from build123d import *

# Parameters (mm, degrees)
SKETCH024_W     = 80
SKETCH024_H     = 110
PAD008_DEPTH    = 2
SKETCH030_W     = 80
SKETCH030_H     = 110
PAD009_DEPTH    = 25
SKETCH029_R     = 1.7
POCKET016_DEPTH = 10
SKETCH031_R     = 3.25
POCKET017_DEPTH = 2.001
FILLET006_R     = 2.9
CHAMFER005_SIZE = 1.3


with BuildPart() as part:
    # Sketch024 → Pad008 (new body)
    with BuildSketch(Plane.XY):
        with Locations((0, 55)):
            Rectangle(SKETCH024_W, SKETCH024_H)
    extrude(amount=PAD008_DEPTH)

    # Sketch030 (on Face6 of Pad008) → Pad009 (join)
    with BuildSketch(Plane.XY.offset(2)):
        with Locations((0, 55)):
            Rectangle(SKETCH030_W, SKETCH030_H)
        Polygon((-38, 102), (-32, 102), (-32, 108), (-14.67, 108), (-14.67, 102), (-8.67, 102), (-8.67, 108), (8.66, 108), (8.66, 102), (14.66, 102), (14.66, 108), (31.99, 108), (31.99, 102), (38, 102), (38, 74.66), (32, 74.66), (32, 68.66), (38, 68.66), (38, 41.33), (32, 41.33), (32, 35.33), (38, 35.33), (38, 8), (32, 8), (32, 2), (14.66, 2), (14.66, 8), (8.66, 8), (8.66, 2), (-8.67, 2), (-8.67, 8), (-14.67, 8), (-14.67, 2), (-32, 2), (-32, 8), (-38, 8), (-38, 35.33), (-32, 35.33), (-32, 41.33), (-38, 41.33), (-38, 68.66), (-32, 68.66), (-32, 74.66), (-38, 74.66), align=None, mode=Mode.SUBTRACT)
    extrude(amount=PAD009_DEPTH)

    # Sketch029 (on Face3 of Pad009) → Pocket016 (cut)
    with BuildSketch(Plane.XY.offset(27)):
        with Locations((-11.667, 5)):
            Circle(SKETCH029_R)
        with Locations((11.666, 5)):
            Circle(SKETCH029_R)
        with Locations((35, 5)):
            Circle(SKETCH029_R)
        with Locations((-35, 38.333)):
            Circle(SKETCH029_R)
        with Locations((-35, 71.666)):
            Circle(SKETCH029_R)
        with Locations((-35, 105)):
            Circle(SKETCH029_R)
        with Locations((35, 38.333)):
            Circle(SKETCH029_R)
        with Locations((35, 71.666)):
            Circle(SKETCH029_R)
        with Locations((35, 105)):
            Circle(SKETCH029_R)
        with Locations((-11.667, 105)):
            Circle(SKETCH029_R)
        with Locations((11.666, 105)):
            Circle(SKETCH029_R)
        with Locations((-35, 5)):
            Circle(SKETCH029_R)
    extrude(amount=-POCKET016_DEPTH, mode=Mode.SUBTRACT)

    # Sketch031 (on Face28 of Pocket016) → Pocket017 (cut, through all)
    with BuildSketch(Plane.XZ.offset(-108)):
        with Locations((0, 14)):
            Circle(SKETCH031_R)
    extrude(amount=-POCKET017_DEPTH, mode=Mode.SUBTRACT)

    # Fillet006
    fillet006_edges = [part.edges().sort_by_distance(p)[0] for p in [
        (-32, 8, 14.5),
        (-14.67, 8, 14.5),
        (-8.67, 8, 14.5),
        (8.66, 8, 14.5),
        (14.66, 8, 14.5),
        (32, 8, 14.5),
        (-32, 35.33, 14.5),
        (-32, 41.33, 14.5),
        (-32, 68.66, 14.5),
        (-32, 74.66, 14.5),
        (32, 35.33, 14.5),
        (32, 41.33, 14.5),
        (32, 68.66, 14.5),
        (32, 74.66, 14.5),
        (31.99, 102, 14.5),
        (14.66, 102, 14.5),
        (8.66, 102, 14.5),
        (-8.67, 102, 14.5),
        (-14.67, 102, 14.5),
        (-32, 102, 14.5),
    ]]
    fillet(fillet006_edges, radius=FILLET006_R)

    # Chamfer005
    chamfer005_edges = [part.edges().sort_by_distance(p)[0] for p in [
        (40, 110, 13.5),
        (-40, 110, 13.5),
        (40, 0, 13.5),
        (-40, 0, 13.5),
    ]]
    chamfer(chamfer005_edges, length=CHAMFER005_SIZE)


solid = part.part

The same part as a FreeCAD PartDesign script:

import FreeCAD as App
import Part
import Sketcher
from FreeCAD import Vector


def edges_at(feature, points):
    """Names of the edges that pass closest to the given points."""
    edges = feature.Shape.Edges
    near = lambda p: min(range(len(edges)), key=lambda i: edges[i].distToShape(Part.Vertex(*p))[0])
    return sorted({f"Edge{near(p) + 1}" for p in points})

doc = App.newDocument("Part")
body = doc.addObject("PartDesign::Body", "Body")

# Sketch on XY plane
sketch1 = doc.addObject("Sketcher::SketchObject", "Sketch")
body.addObject(sketch1)
sketch1.AttachmentSupport = (doc.XY_Plane, [""])
sketch1.MapMode = "FlatFace"
sketch1.addGeometry(Part.LineSegment(Vector(-40, 110, 0), Vector(-40, 0, 0)), False)
sketch1.addGeometry(Part.LineSegment(Vector(-40, 0, 0), Vector(40, 0, 0)), False)
sketch1.addGeometry(Part.LineSegment(Vector(40, 0, 0), Vector(40, 110, 0)), False)
sketch1.addGeometry(Part.LineSegment(Vector(40, 110, 0), Vector(-40, 110, 0)), False)
sketch1.addConstraint(Sketcher.Constraint("Coincident", 0, 2, 1, 1))
sketch1.addConstraint(Sketcher.Constraint("Coincident", 1, 2, 2, 1))
sketch1.addConstraint(Sketcher.Constraint("Coincident", 2, 2, 3, 1))
sketch1.addConstraint(Sketcher.Constraint("Coincident", 3, 2, 0, 1))
sketch1.addConstraint(Sketcher.Constraint("Vertical", 0))
sketch1.addConstraint(Sketcher.Constraint("Horizontal", 1))
sketch1.addConstraint(Sketcher.Constraint("Vertical", 2))
sketch1.addConstraint(Sketcher.Constraint("Horizontal", 3))
sketch1.addConstraint(Sketcher.Constraint("Symmetric", 0, 2, 1, 2, -1, 1))
sketch1.addConstraint(Sketcher.Constraint("DistanceX", 1, 1, 1, 2, 80.0))
sketch1.addConstraint(Sketcher.Constraint("DistanceY", 0, 2, 0, 1, 110.0))
pad1 = doc.addObject("PartDesign::Pad", "Pad")
body.addObject(pad1)
pad1.Profile = sketch1
pad1.Length = 2

# Sketch on XY plane
sketch2 = doc.addObject("Sketcher::SketchObject", "Sketch001")
body.addObject(sketch2)
sketch2.AttachmentSupport = (doc.XY_Plane, [""])
sketch2.MapMode = "FlatFace"
sketch2.AttachmentOffset = App.Placement(Vector(0, 0, 2), App.Rotation())
sketch2.addGeometry(Part.LineSegment(Vector(-40, 110, 0), Vector(-40, 0, 0)), False)
sketch2.addGeometry(Part.LineSegment(Vector(-40, 0, 0), Vector(40, 0, 0)), False)
sketch2.addGeometry(Part.LineSegment(Vector(40, 0, 0), Vector(40, 110, 0)), False)
sketch2.addGeometry(Part.LineSegment(Vector(40, 110, 0), Vector(-40, 110, 0)), False)
sketch2.addGeometry(Part.LineSegment(Vector(-38, 74.66, 0), Vector(-38, 102, 0)), False)
sketch2.addGeometry(Part.LineSegment(Vector(-38, 102, 0), Vector(-32, 102, 0)), False)
sketch2.addGeometry(Part.LineSegment(Vector(-32, 102, 0), Vector(-32, 108, 0)), False)
sketch2.addGeometry(Part.LineSegment(Vector(-32, 108, 0), Vector(-14.67, 108, 0)), False)
sketch2.addGeometry(Part.LineSegment(Vector(-14.67, 108, 0), Vector(-14.67, 102, 0)), False)
sketch2.addGeometry(Part.LineSegment(Vector(-14.67, 102, 0), Vector(-8.67, 102, 0)), False)
sketch2.addGeometry(Part.LineSegment(Vector(-8.67, 102, 0), Vector(-8.67, 108, 0)), False)
sketch2.addGeometry(Part.LineSegment(Vector(-8.67, 108, 0), Vector(8.66, 108, 0)), False)
sketch2.addGeometry(Part.LineSegment(Vector(8.66, 108, 0), Vector(8.66, 102, 0)), False)
sketch2.addGeometry(Part.LineSegment(Vector(8.66, 102, 0), Vector(14.66, 102, 0)), False)
sketch2.addGeometry(Part.LineSegment(Vector(14.66, 102, 0), Vector(14.66, 108, 0)), False)
sketch2.addGeometry(Part.LineSegment(Vector(14.66, 108, 0), Vector(31.99, 108, 0)), False)
sketch2.addGeometry(Part.LineSegment(Vector(31.99, 108, 0), Vector(31.99, 102, 0)), False)
sketch2.addGeometry(Part.LineSegment(Vector(31.99, 102, 0), Vector(38, 102, 0)), False)
sketch2.addGeometry(Part.LineSegment(Vector(38, 102, 0), Vector(38, 74.66, 0)), False)
sketch2.addGeometry(Part.LineSegment(Vector(38, 74.66, 0), Vector(32, 74.66, 0)), False)
sketch2.addGeometry(Part.LineSegment(Vector(32, 74.66, 0), Vector(32, 68.66, 0)), False)
sketch2.addGeometry(Part.LineSegment(Vector(32, 68.66, 0), Vector(38, 68.66, 0)), False)
sketch2.addGeometry(Part.LineSegment(Vector(38, 68.66, 0), Vector(38, 41.33, 0)), False)
sketch2.addGeometry(Part.LineSegment(Vector(38, 41.33, 0), Vector(32, 41.33, 0)), False)
sketch2.addGeometry(Part.LineSegment(Vector(32, 41.33, 0), Vector(32, 35.33, 0)), False)
sketch2.addGeometry(Part.LineSegment(Vector(32, 35.33, 0), Vector(38, 35.33, 0)), False)
sketch2.addGeometry(Part.LineSegment(Vector(38, 35.33, 0), Vector(38, 8, 0)), False)
sketch2.addGeometry(Part.LineSegment(Vector(38, 8, 0), Vector(32, 8, 0)), False)
sketch2.addGeometry(Part.LineSegment(Vector(32, 8, 0), Vector(32, 2, 0)), False)
sketch2.addGeometry(Part.LineSegment(Vector(32, 2, 0), Vector(14.66, 2, 0)), False)
sketch2.addGeometry(Part.LineSegment(Vector(14.66, 2, 0), Vector(14.66, 8, 0)), False)
sketch2.addGeometry(Part.LineSegment(Vector(14.66, 8, 0), Vector(8.66, 8, 0)), False)
sketch2.addGeometry(Part.LineSegment(Vector(8.66, 8, 0), Vector(8.66, 2, 0)), False)
sketch2.addGeometry(Part.LineSegment(Vector(8.66, 2, 0), Vector(-8.67, 2, 0)), False)
sketch2.addGeometry(Part.LineSegment(Vector(-8.67, 2, 0), Vector(-8.67, 8, 0)), False)
sketch2.addGeometry(Part.LineSegment(Vector(-8.67, 8, 0), Vector(-14.67, 8, 0)), False)
sketch2.addGeometry(Part.LineSegment(Vector(-14.67, 8, 0), Vector(-14.67, 2, 0)), False)
sketch2.addGeometry(Part.LineSegment(Vector(-14.67, 2, 0), Vector(-32, 2, 0)), False)
sketch2.addGeometry(Part.LineSegment(Vector(-32, 2, 0), Vector(-32, 8, 0)), False)
sketch2.addGeometry(Part.LineSegment(Vector(-32, 8, 0), Vector(-38, 8, 0)), False)
sketch2.addGeometry(Part.LineSegment(Vector(-38, 8, 0), Vector(-38, 35.33, 0)), False)
sketch2.addGeometry(Part.LineSegment(Vector(-38, 35.33, 0), Vector(-32, 35.33, 0)), False)
sketch2.addGeometry(Part.LineSegment(Vector(-32, 35.33, 0), Vector(-32, 41.33, 0)), False)
sketch2.addGeometry(Part.LineSegment(Vector(-32, 41.33, 0), Vector(-38, 41.33, 0)), False)
sketch2.addGeometry(Part.LineSegment(Vector(-38, 41.33, 0), Vector(-38, 68.66, 0)), False)
sketch2.addGeometry(Part.LineSegment(Vector(-38, 68.66, 0), Vector(-32, 68.66, 0)), False)
sketch2.addGeometry(Part.LineSegment(Vector(-32, 68.66, 0), Vector(-32, 74.66, 0)), False)
sketch2.addGeometry(Part.LineSegment(Vector(-32, 74.66, 0), Vector(-38, 74.66, 0)), False)
sketch2.addConstraint(Sketcher.Constraint("Coincident", 0, 2, 1, 1))
sketch2.addConstraint(Sketcher.Constraint("Coincident", 1, 2, 2, 1))
sketch2.addConstraint(Sketcher.Constraint("Coincident", 2, 2, 3, 1))
sketch2.addConstraint(Sketcher.Constraint("Coincident", 3, 2, 0, 1))
sketch2.addConstraint(Sketcher.Constraint("Coincident", 4, 2, 5, 1))
sketch2.addConstraint(Sketcher.Constraint("Coincident", 5, 2, 6, 1))
sketch2.addConstraint(Sketcher.Constraint("Coincident", 6, 2, 7, 1))
sketch2.addConstraint(Sketcher.Constraint("Coincident", 7, 2, 8, 1))
sketch2.addConstraint(Sketcher.Constraint("Coincident", 8, 2, 9, 1))
sketch2.addConstraint(Sketcher.Constraint("Coincident", 9, 2, 10, 1))
sketch2.addConstraint(Sketcher.Constraint("Coincident", 10, 2, 11, 1))
sketch2.addConstraint(Sketcher.Constraint("Coincident", 11, 2, 12, 1))
sketch2.addConstraint(Sketcher.Constraint("Coincident", 12, 2, 13, 1))
sketch2.addConstraint(Sketcher.Constraint("Coincident", 13, 2, 14, 1))
sketch2.addConstraint(Sketcher.Constraint("Coincident", 14, 2, 15, 1))
sketch2.addConstraint(Sketcher.Constraint("Coincident", 15, 2, 16, 1))
sketch2.addConstraint(Sketcher.Constraint("Coincident", 16, 2, 17, 1))
sketch2.addConstraint(Sketcher.Constraint("Coincident", 17, 2, 18, 1))
sketch2.addConstraint(Sketcher.Constraint("Coincident", 18, 2, 19, 1))
sketch2.addConstraint(Sketcher.Constraint("Coincident", 19, 2, 20, 1))
sketch2.addConstraint(Sketcher.Constraint("Coincident", 20, 2, 21, 1))
sketch2.addConstraint(Sketcher.Constraint("Coincident", 21, 2, 22, 1))
sketch2.addConstraint(Sketcher.Constraint("Coincident", 22, 2, 23, 1))
sketch2.addConstraint(Sketcher.Constraint("Coincident", 23, 2, 24, 1))
sketch2.addConstraint(Sketcher.Constraint("Coincident", 24, 2, 25, 1))
sketch2.addConstraint(Sketcher.Constraint("Coincident", 25, 2, 26, 1))
sketch2.addConstraint(Sketcher.Constraint("Coincident", 26, 2, 27, 1))
sketch2.addConstraint(Sketcher.Constraint("Coincident", 27, 2, 28, 1))
sketch2.addConstraint(Sketcher.Constraint("Coincident", 28, 2, 29, 1))
sketch2.addConstraint(Sketcher.Constraint("Coincident", 29, 2, 30, 1))
sketch2.addConstraint(Sketcher.Constraint("Coincident", 30, 2, 31, 1))
sketch2.addConstraint(Sketcher.Constraint("Coincident", 31, 2, 32, 1))
sketch2.addConstraint(Sketcher.Constraint("Coincident", 32, 2, 33, 1))
sketch2.addConstraint(Sketcher.Constraint("Coincident", 33, 2, 34, 1))
sketch2.addConstraint(Sketcher.Constraint("Coincident", 34, 2, 35, 1))
sketch2.addConstraint(Sketcher.Constraint("Coincident", 35, 2, 36, 1))
sketch2.addConstraint(Sketcher.Constraint("Coincident", 36, 2, 37, 1))
sketch2.addConstraint(Sketcher.Constraint("Coincident", 37, 2, 38, 1))
sketch2.addConstraint(Sketcher.Constraint("Coincident", 38, 2, 39, 1))
sketch2.addConstraint(Sketcher.Constraint("Coincident", 39, 2, 40, 1))
sketch2.addConstraint(Sketcher.Constraint("Coincident", 40, 2, 41, 1))
sketch2.addConstraint(Sketcher.Constraint("Coincident", 41, 2, 42, 1))
sketch2.addConstraint(Sketcher.Constraint("Coincident", 42, 2, 43, 1))
sketch2.addConstraint(Sketcher.Constraint("Coincident", 43, 2, 44, 1))
sketch2.addConstraint(Sketcher.Constraint("Coincident", 44, 2, 45, 1))
sketch2.addConstraint(Sketcher.Constraint("Coincident", 45, 2, 46, 1))
sketch2.addConstraint(Sketcher.Constraint("Coincident", 46, 2, 47, 1))
sketch2.addConstraint(Sketcher.Constraint("Coincident", 47, 2, 4, 1))
sketch2.addConstraint(Sketcher.Constraint("Vertical", 0))
sketch2.addConstraint(Sketcher.Constraint("Horizontal", 1))
sketch2.addConstraint(Sketcher.Constraint("Vertical", 2))
sketch2.addConstraint(Sketcher.Constraint("Horizontal", 3))
sketch2.addConstraint(Sketcher.Constraint("Vertical", 4))
sketch2.addConstraint(Sketcher.Constraint("Horizontal", 5))
sketch2.addConstraint(Sketcher.Constraint("Vertical", 6))
sketch2.addConstraint(Sketcher.Constraint("Horizontal", 7))
sketch2.addConstraint(Sketcher.Constraint("Vertical", 8))
sketch2.addConstraint(Sketcher.Constraint("Horizontal", 9))
sketch2.addConstraint(Sketcher.Constraint("Vertical", 10))
sketch2.addConstraint(Sketcher.Constraint("Horizontal", 11))
sketch2.addConstraint(Sketcher.Constraint("Vertical", 12))
sketch2.addConstraint(Sketcher.Constraint("Horizontal", 13))
sketch2.addConstraint(Sketcher.Constraint("Vertical", 14))
sketch2.addConstraint(Sketcher.Constraint("Horizontal", 15))
sketch2.addConstraint(Sketcher.Constraint("Vertical", 16))
sketch2.addConstraint(Sketcher.Constraint("Horizontal", 17))
sketch2.addConstraint(Sketcher.Constraint("Vertical", 18))
sketch2.addConstraint(Sketcher.Constraint("Horizontal", 19))
sketch2.addConstraint(Sketcher.Constraint("Vertical", 20))
sketch2.addConstraint(Sketcher.Constraint("Horizontal", 21))
sketch2.addConstraint(Sketcher.Constraint("Vertical", 22))
sketch2.addConstraint(Sketcher.Constraint("Horizontal", 23))
sketch2.addConstraint(Sketcher.Constraint("Vertical", 24))
sketch2.addConstraint(Sketcher.Constraint("Horizontal", 25))
sketch2.addConstraint(Sketcher.Constraint("Vertical", 26))
sketch2.addConstraint(Sketcher.Constraint("Horizontal", 27))
sketch2.addConstraint(Sketcher.Constraint("Vertical", 28))
sketch2.addConstraint(Sketcher.Constraint("Horizontal", 29))
sketch2.addConstraint(Sketcher.Constraint("Vertical", 30))
sketch2.addConstraint(Sketcher.Constraint("Horizontal", 31))
sketch2.addConstraint(Sketcher.Constraint("Vertical", 32))
sketch2.addConstraint(Sketcher.Constraint("Horizontal", 33))
sketch2.addConstraint(Sketcher.Constraint("Vertical", 34))
sketch2.addConstraint(Sketcher.Constraint("Horizontal", 35))
sketch2.addConstraint(Sketcher.Constraint("Vertical", 36))
sketch2.addConstraint(Sketcher.Constraint("Horizontal", 37))
sketch2.addConstraint(Sketcher.Constraint("Vertical", 38))
sketch2.addConstraint(Sketcher.Constraint("Horizontal", 39))
sketch2.addConstraint(Sketcher.Constraint("Vertical", 40))
sketch2.addConstraint(Sketcher.Constraint("Horizontal", 41))
sketch2.addConstraint(Sketcher.Constraint("Vertical", 42))
sketch2.addConstraint(Sketcher.Constraint("Horizontal", 43))
sketch2.addConstraint(Sketcher.Constraint("Vertical", 44))
sketch2.addConstraint(Sketcher.Constraint("Horizontal", 45))
sketch2.addConstraint(Sketcher.Constraint("Vertical", 46))
sketch2.addConstraint(Sketcher.Constraint("Horizontal", 47))
sketch2.addConstraint(Sketcher.Constraint("Symmetric", 0, 2, 1, 2, -1, 1))
sketch2.addConstraint(Sketcher.Constraint("Symmetric", 4, 2, 17, 2, -2))
sketch2.addConstraint(Sketcher.Constraint("Symmetric", 28, 2, 37, 2, -2))
sketch2.addConstraint(Sketcher.Constraint("Symmetric", 26, 2, 39, 2, -2))
sketch2.addConstraint(Sketcher.Constraint("Symmetric", 24, 2, 41, 2, -2))
sketch2.addConstraint(Sketcher.Constraint("Symmetric", 22, 2, 43, 2, -2))
sketch2.addConstraint(Sketcher.Constraint("Symmetric", 20, 2, 45, 2, -2))
sketch2.addConstraint(Sketcher.Constraint("Horizontal", 5, 2, 8, 2))
sketch2.addConstraint(Sketcher.Constraint("Horizontal", 7, 2, 10, 2))
sketch2.addConstraint(Sketcher.Constraint("Horizontal", 9, 2, 12, 2))
sketch2.addConstraint(Sketcher.Constraint("Horizontal", 11, 2, 14, 2))
sketch2.addConstraint(Sketcher.Constraint("Horizontal", 27, 2, 30, 2))
sketch2.addConstraint(Sketcher.Constraint("Horizontal", 29, 2, 32, 2))
sketch2.addConstraint(Sketcher.Constraint("Horizontal", 31, 2, 34, 2))
sketch2.addConstraint(Sketcher.Constraint("Horizontal", 19, 2, 46, 2))
sketch2.addConstraint(Sketcher.Constraint("Vertical", 18, 2, 21, 2))
sketch2.addConstraint(Sketcher.Constraint("Vertical", 20, 2, 23, 2))
sketch2.addConstraint(Sketcher.Constraint("Vertical", 22, 2, 25, 2))
sketch2.addConstraint(Sketcher.Constraint("Vertical", 24, 2, 27, 2))
sketch2.addConstraint(Sketcher.Constraint("Vertical", 14, 2, 29, 2))
sketch2.addConstraint(Sketcher.Constraint("Vertical", 12, 2, 31, 2))
sketch2.addConstraint(Sketcher.Constraint("Vertical", 10, 2, 33, 2))
sketch2.addConstraint(Sketcher.Constraint("Vertical", 8, 2, 35, 2))
sketch2.addConstraint(Sketcher.Constraint("Vertical", 6, 2, 37, 2))
sketch2.addConstraint(Sketcher.Constraint("Equal", 5, 9))
sketch2.addConstraint(Sketcher.Constraint("Equal", 7, 11))
sketch2.addConstraint(Sketcher.Constraint("Equal", 9, 13))
sketch2.addConstraint(Sketcher.Constraint("Equal", 11, 15))
sketch2.addConstraint(Sketcher.Constraint("Equal", 47, 6))
sketch2.addConstraint(Sketcher.Constraint("Equal", 16, 20))
sketch2.addConstraint(Sketcher.Constraint("Equal", 20, 24))
sketch2.addConstraint(Sketcher.Constraint("Equal", 22, 26))
sketch2.addConstraint(Sketcher.Constraint("Equal", 24, 28))
sketch2.addConstraint(Sketcher.Constraint("DistanceX", 1, 1, 1, 2, 80.0))
sketch2.addConstraint(Sketcher.Constraint("DistanceX", 5, 1, 5, 2, 6.0))
sketch2.addConstraint(Sketcher.Constraint("DistanceY", 0, 2, 0, 1, 110.0))
sketch2.addConstraint(Sketcher.Constraint("DistanceX", 4, 2, -1, 1, 38.0))
sketch2.addConstraint(Sketcher.Constraint("DistanceY", -1, 1, 4, 2, 102.0))
sketch2.addConstraint(Sketcher.Constraint("DistanceY", -1, 1, 26, 2, 8.0))
sketch2.addConstraint(Sketcher.Constraint("DistanceX", 7, 1, 7, 2, 17.33))
sketch2.addConstraint(Sketcher.Constraint("DistanceY", 4, 1, 4, 2, 27.34))
pad2 = doc.addObject("PartDesign::Pad", "Pad001")
body.addObject(pad2)
pad2.Profile = sketch2
pad2.Length = 25

# Sketch on XY plane
sketch3 = doc.addObject("Sketcher::SketchObject", "Sketch002")
body.addObject(sketch3)
sketch3.AttachmentSupport = (doc.XY_Plane, [""])
sketch3.MapMode = "FlatFace"
sketch3.AttachmentOffset = App.Placement(Vector(0, 0, 27), App.Rotation())
sketch3.addGeometry(Part.Circle(Vector(-11.667, 5, 0), Vector(0, 0, 1), 1.7), False)
sketch3.addGeometry(Part.Circle(Vector(11.666, 5, 0), Vector(0, 0, 1), 1.7), False)
sketch3.addGeometry(Part.Circle(Vector(35, 5, 0), Vector(0, 0, 1), 1.7), False)
sketch3.addGeometry(Part.Circle(Vector(-35, 38.333, 0), Vector(0, 0, 1), 1.7), False)
sketch3.addGeometry(Part.Circle(Vector(-35, 71.666, 0), Vector(0, 0, 1), 1.7), False)
sketch3.addGeometry(Part.Circle(Vector(-35, 105, 0), Vector(0, 0, 1), 1.7), False)
sketch3.addGeometry(Part.Circle(Vector(35, 38.333, 0), Vector(0, 0, 1), 1.7), False)
sketch3.addGeometry(Part.Circle(Vector(35, 71.666, 0), Vector(0, 0, 1), 1.7), False)
sketch3.addGeometry(Part.Circle(Vector(35, 105, 0), Vector(0, 0, 1), 1.7), False)
sketch3.addGeometry(Part.Circle(Vector(-11.667, 105, 0), Vector(0, 0, 1), 1.7), False)
sketch3.addGeometry(Part.Circle(Vector(11.666, 105, 0), Vector(0, 0, 1), 1.7), False)
sketch3.addGeometry(Part.Circle(Vector(-35, 5, 0), Vector(0, 0, 1), 1.7), False)
sketch3.addConstraint(Sketcher.Constraint("Equal", 0, 1))
sketch3.addConstraint(Sketcher.Constraint("Equal", 1, 2))
sketch3.addConstraint(Sketcher.Constraint("Equal", 2, 3))
sketch3.addConstraint(Sketcher.Constraint("Equal", 3, 4))
sketch3.addConstraint(Sketcher.Constraint("Equal", 4, 5))
sketch3.addConstraint(Sketcher.Constraint("Equal", 5, 6))
sketch3.addConstraint(Sketcher.Constraint("Equal", 6, 7))
sketch3.addConstraint(Sketcher.Constraint("Equal", 7, 8))
sketch3.addConstraint(Sketcher.Constraint("Equal", 8, 9))
sketch3.addConstraint(Sketcher.Constraint("Equal", 9, 10))
sketch3.addConstraint(Sketcher.Constraint("Equal", 10, 11))
sketch3.addConstraint(Sketcher.Constraint("Symmetric", 3, 3, 6, 3, -2))
sketch3.addConstraint(Sketcher.Constraint("Symmetric", 4, 3, 7, 3, -2))
sketch3.addConstraint(Sketcher.Constraint("Symmetric", 5, 3, 8, 3, -2))
sketch3.addConstraint(Sketcher.Constraint("Symmetric", 2, 3, 11, 3, -2))
sketch3.addConstraint(Sketcher.Constraint("Horizontal", 0, 3, 1, 3))
sketch3.addConstraint(Sketcher.Constraint("Horizontal", 1, 3, 2, 3))
sketch3.addConstraint(Sketcher.Constraint("Horizontal", 8, 3, 9, 3))
sketch3.addConstraint(Sketcher.Constraint("Horizontal", 9, 3, 10, 3))
sketch3.addConstraint(Sketcher.Constraint("Vertical", 3, 3, 4, 3))
sketch3.addConstraint(Sketcher.Constraint("Vertical", 4, 3, 5, 3))
sketch3.addConstraint(Sketcher.Constraint("Vertical", 2, 3, 6, 3))
sketch3.addConstraint(Sketcher.Constraint("Vertical", 0, 3, 9, 3))
sketch3.addConstraint(Sketcher.Constraint("Vertical", 1, 3, 10, 3))
sketch3.addConstraint(Sketcher.Constraint("Diameter", 0, 3.4))
sketch3.addConstraint(Sketcher.Constraint("DistanceY", -1, 1, 0, 3, 5.0))
sketch3.addConstraint(Sketcher.Constraint("DistanceX", -1, 1, 2, 3, 35.0))
sketch3.addConstraint(Sketcher.Constraint("DistanceY", -1, 1, 5, 3, 105.0))
sketch3.addConstraint(Sketcher.Constraint("DistanceX", 0, 3, -1, 1, 11.667))
sketch3.addConstraint(Sketcher.Constraint("DistanceX", -1, 1, 1, 3, 11.666))
sketch3.addConstraint(Sketcher.Constraint("DistanceY", -1, 1, 3, 3, 38.333))
sketch3.addConstraint(Sketcher.Constraint("DistanceY", -1, 1, 4, 3, 71.666))
pocket1 = doc.addObject("PartDesign::Pocket", "Pocket")
body.addObject(pocket1)
pocket1.Profile = sketch3
pocket1.Length = 10

# Sketch on XZ plane
sketch4 = doc.addObject("Sketcher::SketchObject", "Sketch003")
body.addObject(sketch4)
sketch4.AttachmentSupport = (doc.XZ_Plane, [""])
sketch4.MapMode = "FlatFace"
sketch4.AttachmentOffset = App.Placement(Vector(0, 0, -108), App.Rotation())
sketch4.addGeometry(Part.Circle(Vector(0, 14, 0), Vector(0, 0, 1), 3.25), False)
sketch4.addConstraint(Sketcher.Constraint("PointOnObject", 0, 3, -2))
sketch4.addConstraint(Sketcher.Constraint("Diameter", 0, 6.5))
sketch4.addConstraint(Sketcher.Constraint("DistanceY", -1, 1, 0, 3, 14.0))
pocket2 = doc.addObject("PartDesign::Pocket", "Pocket001")
body.addObject(pocket2)
pocket2.Profile = sketch4
pocket2.Type = "ThroughAll"
doc.recompute()

fillet = doc.addObject("PartDesign::Fillet", "Fillet")
body.addObject(fillet)
fillet.Base = (pocket2, edges_at(pocket2, [
    (-32, 8, 14.5),
    (-14.67, 8, 14.5),
    (-8.67, 8, 14.5),
    (8.66, 8, 14.5),
    (14.66, 8, 14.5),
    (32, 8, 14.5),
    (-32, 35.33, 14.5),
    (-32, 41.33, 14.5),
    (-32, 68.66, 14.5),
    (-32, 74.66, 14.5),
    (32, 35.33, 14.5),
    (32, 41.33, 14.5),
    (32, 68.66, 14.5),
    (32, 74.66, 14.5),
    (31.99, 102, 14.5),
    (14.66, 102, 14.5),
    (8.66, 102, 14.5),
    (-8.67, 102, 14.5),
    (-14.67, 102, 14.5),
    (-32, 102, 14.5),
]))
fillet.Radius = 2.9
doc.recompute()

chamfer = doc.addObject("PartDesign::Chamfer", "Chamfer")
body.addObject(chamfer)
chamfer.Base = (fillet, edges_at(fillet, [
    (40, 110, 13.5),
    (-40, 110, 13.5),
    (40, 0, 13.5),
    (-40, 0, 13.5),
]))
chamfer.Size = 1.3

doc.recompute()
